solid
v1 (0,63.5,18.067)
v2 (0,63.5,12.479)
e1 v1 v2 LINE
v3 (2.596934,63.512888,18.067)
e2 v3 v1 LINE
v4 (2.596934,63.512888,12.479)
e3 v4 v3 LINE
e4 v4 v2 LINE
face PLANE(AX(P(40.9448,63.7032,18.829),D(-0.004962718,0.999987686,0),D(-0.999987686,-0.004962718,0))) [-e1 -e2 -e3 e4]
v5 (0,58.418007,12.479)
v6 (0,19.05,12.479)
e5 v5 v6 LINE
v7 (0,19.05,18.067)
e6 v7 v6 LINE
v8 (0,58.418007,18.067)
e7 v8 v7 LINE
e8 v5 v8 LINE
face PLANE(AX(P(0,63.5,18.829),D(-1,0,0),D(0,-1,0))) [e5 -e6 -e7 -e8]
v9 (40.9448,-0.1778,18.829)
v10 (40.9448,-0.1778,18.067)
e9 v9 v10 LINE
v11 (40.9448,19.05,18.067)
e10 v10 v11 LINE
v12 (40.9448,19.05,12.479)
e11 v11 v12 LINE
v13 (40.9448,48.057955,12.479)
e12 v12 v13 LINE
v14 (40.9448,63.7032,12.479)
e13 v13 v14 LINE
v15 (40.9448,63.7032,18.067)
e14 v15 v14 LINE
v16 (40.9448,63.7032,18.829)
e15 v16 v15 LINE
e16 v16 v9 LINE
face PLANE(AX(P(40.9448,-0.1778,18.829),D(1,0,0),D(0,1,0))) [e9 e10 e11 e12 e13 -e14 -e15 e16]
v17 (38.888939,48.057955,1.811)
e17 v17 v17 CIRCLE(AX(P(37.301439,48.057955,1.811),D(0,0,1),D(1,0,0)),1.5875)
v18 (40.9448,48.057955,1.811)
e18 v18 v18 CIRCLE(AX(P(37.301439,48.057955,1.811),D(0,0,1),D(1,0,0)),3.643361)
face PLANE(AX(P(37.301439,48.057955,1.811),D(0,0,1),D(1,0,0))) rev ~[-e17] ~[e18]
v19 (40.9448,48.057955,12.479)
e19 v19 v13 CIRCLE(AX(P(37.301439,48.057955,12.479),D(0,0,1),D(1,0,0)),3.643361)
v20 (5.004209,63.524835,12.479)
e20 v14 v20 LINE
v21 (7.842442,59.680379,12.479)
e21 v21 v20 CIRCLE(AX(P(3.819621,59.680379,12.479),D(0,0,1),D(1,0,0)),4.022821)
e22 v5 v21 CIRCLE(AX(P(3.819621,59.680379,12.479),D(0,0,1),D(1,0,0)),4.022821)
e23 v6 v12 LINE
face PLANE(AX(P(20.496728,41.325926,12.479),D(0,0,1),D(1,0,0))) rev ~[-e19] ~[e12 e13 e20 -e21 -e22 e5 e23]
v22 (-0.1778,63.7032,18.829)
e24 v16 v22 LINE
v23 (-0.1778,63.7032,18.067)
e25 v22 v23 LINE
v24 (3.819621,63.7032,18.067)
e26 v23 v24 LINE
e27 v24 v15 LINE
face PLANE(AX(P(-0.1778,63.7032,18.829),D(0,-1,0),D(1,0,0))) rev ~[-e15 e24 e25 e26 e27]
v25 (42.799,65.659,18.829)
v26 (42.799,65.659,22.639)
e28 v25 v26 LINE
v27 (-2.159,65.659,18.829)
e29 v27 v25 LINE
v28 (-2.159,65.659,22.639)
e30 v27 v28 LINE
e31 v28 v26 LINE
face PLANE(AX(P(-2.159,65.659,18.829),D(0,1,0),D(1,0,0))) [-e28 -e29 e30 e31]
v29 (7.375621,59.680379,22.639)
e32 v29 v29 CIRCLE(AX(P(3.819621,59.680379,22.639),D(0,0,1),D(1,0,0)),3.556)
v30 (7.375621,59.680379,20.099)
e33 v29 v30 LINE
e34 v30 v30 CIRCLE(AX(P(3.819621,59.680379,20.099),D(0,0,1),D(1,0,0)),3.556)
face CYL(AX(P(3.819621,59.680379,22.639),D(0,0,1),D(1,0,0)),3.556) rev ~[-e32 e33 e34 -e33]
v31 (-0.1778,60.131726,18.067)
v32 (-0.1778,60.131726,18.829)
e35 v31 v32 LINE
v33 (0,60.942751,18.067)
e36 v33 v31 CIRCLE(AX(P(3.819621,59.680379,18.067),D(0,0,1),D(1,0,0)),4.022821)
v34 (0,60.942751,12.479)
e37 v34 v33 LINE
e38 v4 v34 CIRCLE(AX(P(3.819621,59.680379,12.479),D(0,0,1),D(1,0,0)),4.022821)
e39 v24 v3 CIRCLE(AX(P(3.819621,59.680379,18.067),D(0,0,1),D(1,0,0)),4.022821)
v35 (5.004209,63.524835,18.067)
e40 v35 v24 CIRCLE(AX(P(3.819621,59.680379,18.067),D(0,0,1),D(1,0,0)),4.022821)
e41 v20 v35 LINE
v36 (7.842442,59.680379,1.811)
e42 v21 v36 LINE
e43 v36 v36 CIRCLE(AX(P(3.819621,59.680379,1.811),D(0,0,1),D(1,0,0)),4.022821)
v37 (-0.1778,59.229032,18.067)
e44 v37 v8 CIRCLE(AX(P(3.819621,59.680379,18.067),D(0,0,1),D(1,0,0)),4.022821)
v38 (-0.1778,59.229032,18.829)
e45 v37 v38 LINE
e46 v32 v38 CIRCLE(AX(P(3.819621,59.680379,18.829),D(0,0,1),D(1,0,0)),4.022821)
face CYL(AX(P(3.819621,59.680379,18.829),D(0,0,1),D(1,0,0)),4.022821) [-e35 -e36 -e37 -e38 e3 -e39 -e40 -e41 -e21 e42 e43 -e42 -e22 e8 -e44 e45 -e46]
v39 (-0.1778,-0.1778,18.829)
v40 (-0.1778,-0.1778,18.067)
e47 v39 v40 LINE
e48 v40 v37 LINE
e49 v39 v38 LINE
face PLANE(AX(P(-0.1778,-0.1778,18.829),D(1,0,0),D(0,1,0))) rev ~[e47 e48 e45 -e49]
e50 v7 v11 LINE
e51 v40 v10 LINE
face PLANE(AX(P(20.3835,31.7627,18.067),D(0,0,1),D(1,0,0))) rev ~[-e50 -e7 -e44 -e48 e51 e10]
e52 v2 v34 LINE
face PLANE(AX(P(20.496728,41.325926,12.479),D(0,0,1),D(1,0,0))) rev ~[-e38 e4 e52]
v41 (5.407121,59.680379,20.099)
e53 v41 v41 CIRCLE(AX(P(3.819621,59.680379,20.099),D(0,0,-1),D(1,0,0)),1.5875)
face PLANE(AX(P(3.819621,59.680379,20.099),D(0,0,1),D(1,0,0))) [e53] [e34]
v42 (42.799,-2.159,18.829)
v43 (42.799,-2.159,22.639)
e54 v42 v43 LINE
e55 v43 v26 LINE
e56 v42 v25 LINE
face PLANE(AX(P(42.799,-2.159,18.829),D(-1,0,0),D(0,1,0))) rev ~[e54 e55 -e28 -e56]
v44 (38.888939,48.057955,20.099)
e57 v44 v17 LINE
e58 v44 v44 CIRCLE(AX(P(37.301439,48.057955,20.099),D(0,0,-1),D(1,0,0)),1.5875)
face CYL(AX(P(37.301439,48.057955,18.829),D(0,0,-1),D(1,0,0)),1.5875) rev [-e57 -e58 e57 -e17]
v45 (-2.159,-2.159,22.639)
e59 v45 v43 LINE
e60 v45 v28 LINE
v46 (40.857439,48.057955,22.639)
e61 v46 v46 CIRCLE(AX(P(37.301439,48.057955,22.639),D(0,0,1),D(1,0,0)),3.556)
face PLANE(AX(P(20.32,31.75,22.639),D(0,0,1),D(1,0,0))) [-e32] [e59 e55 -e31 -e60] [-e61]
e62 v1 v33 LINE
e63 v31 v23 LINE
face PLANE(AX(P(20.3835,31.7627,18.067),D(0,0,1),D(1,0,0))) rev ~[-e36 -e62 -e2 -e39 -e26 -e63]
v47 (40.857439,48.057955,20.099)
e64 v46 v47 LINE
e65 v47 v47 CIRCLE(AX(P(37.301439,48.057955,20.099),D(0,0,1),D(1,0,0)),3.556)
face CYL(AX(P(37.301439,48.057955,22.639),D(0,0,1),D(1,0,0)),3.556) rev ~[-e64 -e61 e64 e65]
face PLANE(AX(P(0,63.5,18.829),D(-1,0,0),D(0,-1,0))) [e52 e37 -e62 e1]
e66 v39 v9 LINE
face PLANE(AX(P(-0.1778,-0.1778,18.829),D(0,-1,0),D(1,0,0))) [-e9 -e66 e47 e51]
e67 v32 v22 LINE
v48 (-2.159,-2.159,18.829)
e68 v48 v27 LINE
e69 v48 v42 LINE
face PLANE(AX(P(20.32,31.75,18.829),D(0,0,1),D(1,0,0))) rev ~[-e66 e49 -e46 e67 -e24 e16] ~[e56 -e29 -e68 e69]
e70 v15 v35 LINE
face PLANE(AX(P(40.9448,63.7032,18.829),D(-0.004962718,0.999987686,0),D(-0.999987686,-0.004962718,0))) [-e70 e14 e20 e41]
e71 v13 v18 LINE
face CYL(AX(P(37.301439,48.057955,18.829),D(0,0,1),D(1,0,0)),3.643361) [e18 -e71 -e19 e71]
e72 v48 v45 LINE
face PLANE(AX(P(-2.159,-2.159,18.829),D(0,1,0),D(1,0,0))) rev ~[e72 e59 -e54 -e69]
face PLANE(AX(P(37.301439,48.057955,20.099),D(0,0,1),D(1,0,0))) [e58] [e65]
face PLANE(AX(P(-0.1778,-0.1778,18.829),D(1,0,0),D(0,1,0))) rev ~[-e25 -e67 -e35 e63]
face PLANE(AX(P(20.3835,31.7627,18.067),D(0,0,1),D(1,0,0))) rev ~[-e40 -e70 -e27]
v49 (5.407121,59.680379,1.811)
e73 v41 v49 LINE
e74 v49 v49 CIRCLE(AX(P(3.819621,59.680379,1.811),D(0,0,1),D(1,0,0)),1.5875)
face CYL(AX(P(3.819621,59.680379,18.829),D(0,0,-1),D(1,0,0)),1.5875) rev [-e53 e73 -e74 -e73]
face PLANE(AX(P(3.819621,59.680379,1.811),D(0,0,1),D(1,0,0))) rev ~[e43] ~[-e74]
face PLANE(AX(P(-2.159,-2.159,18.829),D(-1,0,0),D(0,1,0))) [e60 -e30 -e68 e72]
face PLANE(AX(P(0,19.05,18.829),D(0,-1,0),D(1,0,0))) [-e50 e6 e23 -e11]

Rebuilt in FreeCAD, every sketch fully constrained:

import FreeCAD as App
import Part
import Sketcher
from FreeCAD import Vector
Q = App.Units.Quantity

doc = App.newDocument("Part")
body = doc.addObject("PartDesign::Body", "Body")

# Sketch on XY plane
sketch1 = doc.addObject("Sketcher::SketchObject", "Sketch")
body.addObject(sketch1)
sketch1.AttachmentSupport = (doc.XY_Plane, [""])
sketch1.MapMode = "FlatFace"
sketch1.AttachmentOffset = App.Placement(Vector(0, 0, 18.829), App.Rotation())
sketch1.addGeometry(Part.LineSegment(Vector(-2, 66, 0), Vector(-2, -2, 0)), False)
sketch1.addGeometry(Part.LineSegment(Vector(-2, -2, 0), Vector(43, -2, 0)), False)
sketch1.addGeometry(Part.LineSegment(Vector(43, -2, 0), Vector(43, 66, 0)), False)
sketch1.addGeometry(Part.LineSegment(Vector(43, 66, 0), Vector(-2, 66, 0)), False)
sketch1.addConstraint(Sketcher.Constraint("Coincident", 0, 2, 1, 1))
sketch1.addConstraint(Sketcher.Constraint("Coincident", 1, 2, 2, 1))
sketch1.addConstraint(Sketcher.Constraint("Coincident", 2, 2, 3, 1))
sketch1.addConstraint(Sketcher.Constraint("Coincident", 3, 2, 0, 1))
sketch1.addConstraint(Sketcher.Constraint("Vertical", 0))
sketch1.addConstraint(Sketcher.Constraint("Horizontal", 1))
sketch1.addConstraint(Sketcher.Constraint("Vertical", 2))
sketch1.addConstraint(Sketcher.Constraint("Horizontal", 3))
sketch1.addConstraint(Sketcher.Constraint("DistanceX", 1, 1, 1, 2, Q("1.77 in")))
sketch1.addConstraint(Sketcher.Constraint("DistanceY", 0, 2, 0, 1, Q("2.67 in")))
sketch1.addConstraint(Sketcher.Constraint("DistanceX", 0, 2, -1, 1, Q("0.085 in")))
sketch1.addConstraint(Sketcher.Constraint("DistanceY", 0, 2, -1, 1, Q("0.085 in")))
pad1 = doc.addObject("PartDesign::Pad", "Pad")
body.addObject(pad1)
pad1.Profile = sketch1
pad1.Length = Q("0.15 in")

# Sketch on XY plane
sketch2 = doc.addObject("Sketcher::SketchObject", "Sketch001")
body.addObject(sketch2)
sketch2.AttachmentSupport = (doc.XY_Plane, [""])
sketch2.MapMode = "FlatFace"
sketch2.AttachmentOffset = App.Placement(Vector(0, 0, 18.829), App.Rotation())
sketch2.addGeometry(Part.LineSegment(Vector(0, 64, 0), Vector(0, 0, 0)), False)
sketch2.addGeometry(Part.LineSegment(Vector(0, 0, 0), Vector(41, 0, 0)), False)
sketch2.addGeometry(Part.LineSegment(Vector(41, 0, 0), Vector(41, 64, 0)), False)
sketch2.addGeometry(Part.LineSegment(Vector(41, 64, 0), Vector(0, 64, 0)), False)
sketch2.addConstraint(Sketcher.Constraint("Coincident", 0, 2, 1, 1))
sketch2.addConstraint(Sketcher.Constraint("Coincident", 1, 2, 2, 1))
sketch2.addConstraint(Sketcher.Constraint("Coincident", 2, 2, 3, 1))
sketch2.addConstraint(Sketcher.Constraint("Coincident", 3, 2, 0, 1))
sketch2.addConstraint(Sketcher.Constraint("Vertical", 0))
sketch2.addConstraint(Sketcher.Constraint("Horizontal", 1))
sketch2.addConstraint(Sketcher.Constraint("Vertical", 2))
sketch2.addConstraint(Sketcher.Constraint("Horizontal", 3))
sketch2.addConstraint(Sketcher.Constraint("DistanceX", 1, 1, 1, 2, Q("1.619 in")))
sketch2.addConstraint(Sketcher.Constraint("DistanceY", 0, 2, 0, 1, Q("2.515 in")))
sketch2.addConstraint(Sketcher.Constraint("DistanceX", 0, 2, -1, 1, Q("0.007 in")))
sketch2.addConstraint(Sketcher.Constraint("DistanceY", 0, 2, -1, 1, Q("0.007 in")))
pad2 = doc.addObject("PartDesign::Pad", "Pad001")
body.addObject(pad2)
pad2.Profile = sketch2
pad2.Length = Q("0.03 in")
pad2.Reversed = True

# Sketch on XY plane
sketch3 = doc.addObject("Sketcher::SketchObject", "Sketch002")
body.addObject(sketch3)
sketch3.AttachmentSupport = (doc.XY_Plane, [""])
sketch3.MapMode = "FlatFace"
sketch3.AttachmentOffset = App.Placement(Vector(0, 0, 18.829), App.Rotation())
sketch3.addGeometry(Part.Circle(Vector(3.8, 59.7, 0), Vector(0, 0, 1), 4), False)
sketch3.addGeometry(Part.Circle(Vector(3.8, 59.7, 0), Vector(0, 0, 1), 1.6), False)
sketch3.addGeometry(Part.Circle(Vector(37.3, 48.1, 0), Vector(0, 0, 1), 3.6), False)
sketch3.addGeometry(Part.Circle(Vector(37.3, 48.1, 0), Vector(0, 0, 1), 1.6), False)
sketch3.addConstraint(Sketcher.Constraint("Coincident", 1, 3, 0, 3))
sketch3.addConstraint(Sketcher.Constraint("Coincident", 3, 3, 2, 3))
sketch3.addConstraint(Sketcher.Constraint("Equal", 1, 3))
sketch3.addConstraint(Sketcher.Constraint("Diameter", 1, Q("0.125 in")))
sketch3.addConstraint(Sketcher.Constraint("Diameter", 0, Q("8.045642 mm")))
sketch3.addConstraint(Sketcher.Constraint("Diameter", 2, Q("7.286722 mm")))
sketch3.addConstraint(Sketcher.Constraint("DistanceX", -1, 1, 0, 3, Q("3.819621 mm")))
sketch3.addConstraint(Sketcher.Constraint("DistanceY", -1, 1, 0, 3, Q("59.680379 mm")))
sketch3.addConstraint(Sketcher.Constraint("DistanceX", -1, 1, 2, 3, Q("37.301439 mm")))
sketch3.addConstraint(Sketcher.Constraint("DistanceY", -1, 1, 2, 3, Q("48.057955 mm")))
pad3 = doc.addObject("PartDesign::Pad", "Pad002")
body.addObject(pad3)
pad3.Profile = sketch3
pad3.Length = Q("0.67 in")
pad3.Reversed = True

# Sketch on XY plane
sketch4 = doc.addObject("Sketcher::SketchObject", "Sketch003")
body.addObject(sketch4)
sketch4.AttachmentSupport = (doc.XY_Plane, [""])
sketch4.MapMode = "FlatFace"
sketch4.AttachmentOffset = App.Placement(Vector(0, 0, 18.829), App.Rotation())
sketch4.addGeometry(Part.LineSegment(Vector(0, 64, 0), Vector(0, 19, 0)), False)
sketch4.addGeometry(Part.LineSegment(Vector(0, 19, 0), Vector(41, 19, 0)), False)
sketch4.addGeometry(Part.LineSegment(Vector(41, 19, 0), Vector(41, 64, 0)), False)
sketch4.addGeometry(Part.LineSegment(Vector(41, 64, 0), Vector(0, 64, 0)), False)
sketch4.addConstraint(Sketcher.Constraint("Coincident", 0, 2, 1, 1))
sketch4.addConstraint(Sketcher.Constraint("Coincident", 1, 2, 2, 1))
sketch4.addConstraint(Sketcher.Constraint("Coincident", 2, 2, 3, 1))
sketch4.addConstraint(Sketcher.Constraint("Coincident", 3, 2, 0, 1))
sketch4.addConstraint(Sketcher.Constraint("Vertical", 0))
sketch4.addConstraint(Sketcher.Constraint("Horizontal", 1))
sketch4.addConstraint(Sketcher.Constraint("Vertical", 2))
sketch4.addConstraint(Sketcher.Constraint("PointOnObject", 0, 2, -2))
sketch4.addConstraint(Sketcher.Constraint("DistanceY", 0, 2, 0, 1, Q("1.75 in")))
sketch4.addConstraint(Sketcher.Constraint("DistanceY", -1, 1, 3, 2, Q("2.5 in")))
sketch4.addConstraint(Sketcher.Constraint("DistanceX", 1, 1, 1, 2, Q("1.612 in")))
sketch4.addConstraint(Sketcher.Constraint("DistanceY", 2, 1, 2, 2, Q("1.758 in")))
pad4 = doc.addObject("PartDesign::Pad", "Pad003")
body.addObject(pad4)
pad4.Profile = sketch4
pad4.Length = Q("0.25 in")
pad4.Reversed = True

# Sketch on XY plane
sketch5 = doc.addObject("Sketcher::SketchObject", "Sketch004")
body.addObject(sketch5)
sketch5.AttachmentSupport = (doc.XY_Plane, [""])
sketch5.MapMode = "FlatFace"
sketch5.AttachmentOffset = App.Placement(Vector(0, 0, 18.829), App.Rotation())
sketch5.addGeometry(Part.Circle(Vector(3.8, 59.7, 0), Vector(0, 0, 1), 1.6), False)
sketch5.addGeometry(Part.Circle(Vector(37.3, 48.1, 0), Vector(0, 0, 1), 1.6), False)
sketch5.addConstraint(Sketcher.Constraint("Equal", 0, 1))
sketch5.addConstraint(Sketcher.Constraint("Diameter", 0, Q("0.125 in")))
sketch5.addConstraint(Sketcher.Constraint("DistanceX", -1, 1, 0, 3, Q("3.819621 mm")))
sketch5.addConstraint(Sketcher.Constraint("DistanceY", -1, 1, 0, 3, Q("59.680379 mm")))
sketch5.addConstraint(Sketcher.Constraint("DistanceX", -1, 1, 1, 3, Q("37.301439 mm")))
sketch5.addConstraint(Sketcher.Constraint("DistanceY", -1, 1, 1, 3, Q("48.057955 mm")))
pocket1 = doc.addObject("PartDesign::Pocket", "Pocket")
body.addObject(pocket1)
pocket1.Profile = sketch5
pocket1.Type = "ThroughAll"
pocket1.Midplane = True

# Sketch on XY plane
sketch6 = doc.addObject("Sketcher::SketchObject", "Sketch005")
body.addObject(sketch6)
sketch6.AttachmentSupport = (doc.XY_Plane, [""])
sketch6.MapMode = "FlatFace"
sketch6.AttachmentOffset = App.Placement(Vector(0, 0, 22.639), App.Rotation())
sketch6.addGeometry(Part.Circle(Vector(3.8, 59.7, 0), Vector(0, 0, 1), 3.6), False)
sketch6.addGeometry(Part.Circle(Vector(37.3, 48.1, 0), Vector(0, 0, 1), 3.6), False)
sketch6.addConstraint(Sketcher.Constraint("Equal", 0, 1))
sketch6.addConstraint(Sketcher.Constraint("Diameter", 0, Q("0.28 in")))
sketch6.addConstraint(Sketcher.Constraint("DistanceX", -1, 1, 0, 3, Q("3.819621 mm")))
sketch6.addConstraint(Sketcher.Constraint("DistanceY", -1, 1, 0, 3, Q("59.680379 mm")))
sketch6.addConstraint(Sketcher.Constraint("DistanceX", -1, 1, 1, 3, Q("37.301439 mm")))
sketch6.addConstraint(Sketcher.Constraint("DistanceY", -1, 1, 1, 3, Q("48.057955 mm")))
pocket2 = doc.addObject("PartDesign::Pocket", "Pocket001")
body.addObject(pocket2)
pocket2.Profile = sketch6
pocket2.Length = Q("0.1 in")

doc.recompute()
